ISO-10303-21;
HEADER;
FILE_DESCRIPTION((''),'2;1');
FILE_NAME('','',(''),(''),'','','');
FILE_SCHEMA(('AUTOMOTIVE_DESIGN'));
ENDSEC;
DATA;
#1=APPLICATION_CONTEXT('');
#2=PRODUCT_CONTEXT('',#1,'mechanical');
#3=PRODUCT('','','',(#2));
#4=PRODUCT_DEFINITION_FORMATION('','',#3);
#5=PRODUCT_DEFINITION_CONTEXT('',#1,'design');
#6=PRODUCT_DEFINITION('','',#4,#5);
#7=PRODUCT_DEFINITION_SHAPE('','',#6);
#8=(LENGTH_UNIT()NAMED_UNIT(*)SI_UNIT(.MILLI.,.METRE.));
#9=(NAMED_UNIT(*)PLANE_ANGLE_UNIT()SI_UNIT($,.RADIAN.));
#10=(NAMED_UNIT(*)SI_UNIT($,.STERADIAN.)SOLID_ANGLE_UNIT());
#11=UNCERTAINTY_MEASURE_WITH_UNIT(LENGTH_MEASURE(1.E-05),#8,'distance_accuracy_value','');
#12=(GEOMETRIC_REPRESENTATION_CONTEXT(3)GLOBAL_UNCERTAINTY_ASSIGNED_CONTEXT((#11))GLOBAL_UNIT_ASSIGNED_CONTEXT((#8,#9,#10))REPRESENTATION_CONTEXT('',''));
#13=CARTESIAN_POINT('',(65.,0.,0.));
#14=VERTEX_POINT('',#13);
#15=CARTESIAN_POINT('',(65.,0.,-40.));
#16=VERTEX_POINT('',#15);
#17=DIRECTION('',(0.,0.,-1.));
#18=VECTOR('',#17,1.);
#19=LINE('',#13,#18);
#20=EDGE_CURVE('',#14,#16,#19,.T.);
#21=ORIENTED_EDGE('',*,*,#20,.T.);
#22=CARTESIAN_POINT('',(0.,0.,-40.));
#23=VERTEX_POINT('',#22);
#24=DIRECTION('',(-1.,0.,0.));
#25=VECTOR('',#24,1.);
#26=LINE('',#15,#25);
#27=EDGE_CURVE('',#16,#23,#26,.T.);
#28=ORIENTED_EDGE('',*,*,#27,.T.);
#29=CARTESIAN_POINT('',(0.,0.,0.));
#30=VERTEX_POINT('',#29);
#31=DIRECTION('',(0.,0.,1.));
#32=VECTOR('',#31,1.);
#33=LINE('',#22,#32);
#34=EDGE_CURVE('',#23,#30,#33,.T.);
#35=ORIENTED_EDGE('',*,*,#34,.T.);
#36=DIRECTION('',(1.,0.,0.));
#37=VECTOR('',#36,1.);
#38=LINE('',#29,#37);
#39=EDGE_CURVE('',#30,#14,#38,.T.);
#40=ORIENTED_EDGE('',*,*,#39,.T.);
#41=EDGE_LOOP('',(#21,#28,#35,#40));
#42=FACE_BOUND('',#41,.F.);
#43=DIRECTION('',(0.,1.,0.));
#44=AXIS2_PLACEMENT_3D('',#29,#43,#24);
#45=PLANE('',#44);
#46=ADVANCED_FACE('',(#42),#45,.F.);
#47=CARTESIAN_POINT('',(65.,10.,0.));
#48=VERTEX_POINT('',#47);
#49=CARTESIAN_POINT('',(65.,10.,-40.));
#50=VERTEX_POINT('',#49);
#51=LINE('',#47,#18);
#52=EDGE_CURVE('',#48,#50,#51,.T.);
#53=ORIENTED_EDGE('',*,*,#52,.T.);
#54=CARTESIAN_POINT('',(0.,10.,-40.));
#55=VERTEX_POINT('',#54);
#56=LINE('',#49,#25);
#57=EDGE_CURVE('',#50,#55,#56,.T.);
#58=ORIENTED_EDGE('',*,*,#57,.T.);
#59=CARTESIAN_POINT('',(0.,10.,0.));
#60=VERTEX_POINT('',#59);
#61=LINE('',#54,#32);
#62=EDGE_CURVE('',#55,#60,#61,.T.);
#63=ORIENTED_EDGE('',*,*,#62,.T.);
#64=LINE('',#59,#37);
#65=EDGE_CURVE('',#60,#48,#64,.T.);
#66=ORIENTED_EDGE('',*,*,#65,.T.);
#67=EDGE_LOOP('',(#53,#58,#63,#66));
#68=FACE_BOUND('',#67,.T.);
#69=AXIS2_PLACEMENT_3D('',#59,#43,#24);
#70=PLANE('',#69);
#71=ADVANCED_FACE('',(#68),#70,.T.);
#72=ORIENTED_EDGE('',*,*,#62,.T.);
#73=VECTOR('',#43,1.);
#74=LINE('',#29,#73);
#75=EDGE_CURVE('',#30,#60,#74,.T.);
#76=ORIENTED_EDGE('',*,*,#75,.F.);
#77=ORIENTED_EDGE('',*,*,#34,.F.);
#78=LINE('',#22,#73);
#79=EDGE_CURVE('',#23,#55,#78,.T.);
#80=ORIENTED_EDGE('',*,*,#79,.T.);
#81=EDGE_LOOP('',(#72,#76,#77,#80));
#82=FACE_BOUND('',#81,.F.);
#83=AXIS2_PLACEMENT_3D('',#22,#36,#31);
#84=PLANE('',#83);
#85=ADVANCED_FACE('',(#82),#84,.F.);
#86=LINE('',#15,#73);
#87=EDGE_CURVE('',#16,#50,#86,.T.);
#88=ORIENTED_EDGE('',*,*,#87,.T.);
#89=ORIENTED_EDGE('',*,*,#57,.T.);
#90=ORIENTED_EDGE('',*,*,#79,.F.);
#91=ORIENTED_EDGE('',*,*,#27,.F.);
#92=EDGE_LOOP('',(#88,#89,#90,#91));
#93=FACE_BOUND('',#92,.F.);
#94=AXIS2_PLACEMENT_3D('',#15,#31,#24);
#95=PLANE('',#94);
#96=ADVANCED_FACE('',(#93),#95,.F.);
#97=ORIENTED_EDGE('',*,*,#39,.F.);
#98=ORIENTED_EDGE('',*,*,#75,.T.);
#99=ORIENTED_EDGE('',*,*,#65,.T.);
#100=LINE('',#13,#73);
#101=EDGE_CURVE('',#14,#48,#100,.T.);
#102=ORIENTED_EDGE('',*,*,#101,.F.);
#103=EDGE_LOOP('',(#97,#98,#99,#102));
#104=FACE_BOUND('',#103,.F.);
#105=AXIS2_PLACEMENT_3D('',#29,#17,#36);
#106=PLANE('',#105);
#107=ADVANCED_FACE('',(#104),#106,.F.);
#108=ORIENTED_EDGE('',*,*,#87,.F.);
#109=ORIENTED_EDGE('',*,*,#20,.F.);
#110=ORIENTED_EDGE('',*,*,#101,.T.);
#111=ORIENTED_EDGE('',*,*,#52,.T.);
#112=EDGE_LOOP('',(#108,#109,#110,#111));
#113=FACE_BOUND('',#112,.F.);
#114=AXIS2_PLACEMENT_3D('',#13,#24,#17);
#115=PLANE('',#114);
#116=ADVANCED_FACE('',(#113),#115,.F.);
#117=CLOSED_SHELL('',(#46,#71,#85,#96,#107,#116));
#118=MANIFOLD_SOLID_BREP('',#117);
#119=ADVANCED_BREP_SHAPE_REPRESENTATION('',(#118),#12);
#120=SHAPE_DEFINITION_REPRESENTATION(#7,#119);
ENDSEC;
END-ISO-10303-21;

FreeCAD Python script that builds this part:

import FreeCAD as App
import Part
import Sketcher

doc = App.newDocument("Part")
body = doc.addObject("PartDesign::Body", "Body")

sketch1 = doc.addObject("Sketcher::SketchObject", "Sketch")
body.addObject(sketch1)
sketch1.AttachmentSupport = (doc.XZ_Plane, [""])
sketch1.MapMode = "FlatFace"
sketch1.addGeometry([
    Part.LineSegment(App.Vector(0, -40, 0), App.Vector(0, 0, 0)),
    Part.LineSegment(App.Vector(0, 0, 0), App.Vector(65, 0, 0)),
    Part.LineSegment(App.Vector(65, 0, 0), App.Vector(65, -40, 0)),
    Part.LineSegment(App.Vector(65, -40, 0), App.Vector(0, -40, 0)),
], False)
sketch1.addConstraint([
    Sketcher.Constraint("Coincident", 0, 2, 1, 1),
    Sketcher.Constraint("Coincident", 1, 2, 2, 1),
    Sketcher.Constraint("Coincident", 2, 2, 3, 1),
    Sketcher.Constraint("Coincident", 3, 2, 0, 1),
    Sketcher.Constraint("Vertical", 0),
    Sketcher.Constraint("Horizontal", 1),
    Sketcher.Constraint("Vertical", 2),
    Sketcher.Constraint("Horizontal", 3),
    Sketcher.Constraint("Coincident", 0, 2, -1, 1),
    Sketcher.Constraint("DistanceX", 1, 1, 1, 2, 65.0),
    Sketcher.Constraint("DistanceY", 0, 1, 0, 2, 40.0),
])
pad1 = doc.addObject("PartDesign::Pad", "Pad")
body.addObject(pad1)
pad1.Profile = sketch1
pad1.Length = 10
pad1.Reversed = True

doc.recompute()
